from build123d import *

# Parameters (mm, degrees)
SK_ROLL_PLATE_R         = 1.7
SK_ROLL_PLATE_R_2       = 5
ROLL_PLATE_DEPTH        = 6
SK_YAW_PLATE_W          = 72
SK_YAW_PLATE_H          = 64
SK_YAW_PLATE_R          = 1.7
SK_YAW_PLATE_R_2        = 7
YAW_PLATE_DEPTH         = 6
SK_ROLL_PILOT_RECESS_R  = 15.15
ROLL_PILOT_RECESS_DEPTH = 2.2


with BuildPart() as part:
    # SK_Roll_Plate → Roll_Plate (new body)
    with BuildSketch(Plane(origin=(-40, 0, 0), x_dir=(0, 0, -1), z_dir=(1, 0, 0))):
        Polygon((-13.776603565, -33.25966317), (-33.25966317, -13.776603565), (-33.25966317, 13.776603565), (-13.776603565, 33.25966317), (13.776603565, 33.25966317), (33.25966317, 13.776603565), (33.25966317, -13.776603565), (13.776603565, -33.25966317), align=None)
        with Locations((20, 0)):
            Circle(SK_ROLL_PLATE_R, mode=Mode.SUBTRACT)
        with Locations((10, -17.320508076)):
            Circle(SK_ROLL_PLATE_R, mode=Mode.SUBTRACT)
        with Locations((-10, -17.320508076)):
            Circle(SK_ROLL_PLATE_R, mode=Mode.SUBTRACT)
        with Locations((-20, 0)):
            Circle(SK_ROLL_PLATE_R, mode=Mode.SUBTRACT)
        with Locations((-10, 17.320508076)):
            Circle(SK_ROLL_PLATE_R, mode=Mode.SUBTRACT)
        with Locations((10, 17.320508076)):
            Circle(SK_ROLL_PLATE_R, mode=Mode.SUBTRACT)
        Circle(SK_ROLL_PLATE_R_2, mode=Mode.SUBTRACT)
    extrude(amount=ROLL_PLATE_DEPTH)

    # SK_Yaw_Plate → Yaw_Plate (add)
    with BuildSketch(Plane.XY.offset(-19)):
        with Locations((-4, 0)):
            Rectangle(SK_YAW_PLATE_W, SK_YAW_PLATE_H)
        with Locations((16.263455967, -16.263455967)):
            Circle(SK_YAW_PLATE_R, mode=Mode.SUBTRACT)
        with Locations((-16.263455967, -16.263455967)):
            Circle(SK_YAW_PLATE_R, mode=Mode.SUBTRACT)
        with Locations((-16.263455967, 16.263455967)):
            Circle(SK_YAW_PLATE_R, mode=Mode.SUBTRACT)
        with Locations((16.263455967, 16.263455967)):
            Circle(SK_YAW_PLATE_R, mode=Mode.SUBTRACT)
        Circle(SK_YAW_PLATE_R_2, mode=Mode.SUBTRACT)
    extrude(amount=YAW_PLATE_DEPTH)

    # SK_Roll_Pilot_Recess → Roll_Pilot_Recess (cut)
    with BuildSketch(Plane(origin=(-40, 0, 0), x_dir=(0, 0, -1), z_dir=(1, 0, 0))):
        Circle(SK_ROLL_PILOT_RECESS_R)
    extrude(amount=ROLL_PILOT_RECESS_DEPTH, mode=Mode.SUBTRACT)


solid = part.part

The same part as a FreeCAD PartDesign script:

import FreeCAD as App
import Part
import Sketcher

V = App.Vector
Q = App.Units.Quantity

doc = App.newDocument("Part")
body = doc.addObject("PartDesign::Body", "Body")

sketch1 = body.newObject("Sketcher::SketchObject", "Sketch")
sketch1.AttachmentSupport = (doc.getObject("YZ_Plane"), [""])
sketch1.MapMode = "FlatFace"
sketch1.AttachmentOffset = App.Placement(V(0, 0, -40), App.Rotation())
sketch1.addGeometry(Part.LineSegment(V(-13.776604, 33.259663, 0), V(-33.259663, 13.776604, 0)), False)
sketch1.addGeometry(Part.LineSegment(V(-33.259663, 13.776604, 0), V(-33.259663, -13.776604, 0)), False)
sketch1.addGeometry(Part.LineSegment(V(-33.259663, -13.776604, 0), V(-13.776604, -33.259663, 0)), False)
sketch1.addGeometry(Part.LineSegment(V(-13.776604, -33.259663, 0), V(13.776604, -33.259663, 0)), False)
sketch1.addGeometry(Part.LineSegment(V(13.776604, -33.259663, 0), V(33.259663, -13.776604, 0)), False)
sketch1.addGeometry(Part.LineSegment(V(33.259663, -13.776604, 0), V(33.259663, 13.776604, 0)), False)
sketch1.addGeometry(Part.LineSegment(V(33.259663, 13.776604, 0), V(13.776604, 33.259663, 0)), False)
sketch1.addGeometry(Part.LineSegment(V(13.776604, 33.259663, 0), V(-13.776604, 33.259663, 0)), False)
sketch1.addGeometry(Part.Circle(V(-17.320508, -10, 0), V(0, 0, 1), 1.7), False)
sketch1.addGeometry(Part.Circle(V(-17.320508, 10, 0), V(0, 0, 1), 1.7), False)
sketch1.addGeometry(Part.Circle(V(0, -20, 0), V(0, 0, 1), 1.7), False)
sketch1.addGeometry(Part.Circle(V(0, 0, 0), V(0, 0, 1), 5), False)
sketch1.addGeometry(Part.Circle(V(17.320508, -10, 0), V(0, 0, 1), 1.7), False)
sketch1.addGeometry(Part.Circle(V(0, 20, 0), V(0, 0, 1), 1.7), False)
sketch1.addGeometry(Part.Circle(V(17.320508, 10, 0), V(0, 0, 1), 1.7), False)
sketch1.addConstraint(Sketcher.Constraint("Coincident", 0, 2, 1, 1))
sketch1.addConstraint(Sketcher.Constraint("Coincident", 1, 2, 2, 1))
sketch1.addConstraint(Sketcher.Constraint("Coincident", 2, 2, 3, 1))
sketch1.addConstraint(Sketcher.Constraint("Coincident", 3, 2, 4, 1))
sketch1.addConstraint(Sketcher.Constraint("Coincident", 4, 2, 5, 1))
sketch1.addConstraint(Sketcher.Constraint("Coincident", 5, 2, 6, 1))
sketch1.addConstraint(Sketcher.Constraint("Coincident", 6, 2, 7, 1))
sketch1.addConstraint(Sketcher.Constraint("Coincident", 7, 2, 0, 1))
sketch1.addConstraint(Sketcher.Constraint("Vertical", 1))
sketch1.addConstraint(Sketcher.Constraint("Horizontal", 3))
sketch1.addConstraint(Sketcher.Constraint("Vertical", 5))
sketch1.addConstraint(Sketcher.Constraint("Horizontal", 7))
sketch1.addConstraint(Sketcher.Constraint("Coincident", 11, 3, -1, 1))
sketch1.addConstraint(Sketcher.Constraint("Equal", 8, 9))
sketch1.addConstraint(Sketcher.Constraint("Equal", 9, 10))
sketch1.addConstraint(Sketcher.Constraint("Equal", 10, 12))
sketch1.addConstraint(Sketcher.Constraint("Equal", 12, 13))
sketch1.addConstraint(Sketcher.Constraint("Equal", 13, 14))
sketch1.addConstraint(Sketcher.Constraint("Symmetric", 9, 3, 12, 3, -1, 1))
sketch1.addConstraint(Sketcher.Constraint("Symmetric", 10, 3, 13, 3, -1, 1))
sketch1.addConstraint(Sketcher.Constraint("Symmetric", 8, 3, 14, 3, -1, 1))
sketch1.addConstraint(Sketcher.Constraint("Symmetric", 0, 2, 4, 2, -1, 1))
sketch1.addConstraint(Sketcher.Constraint("Symmetric", 2, 2, 6, 2, -1, 1))
sketch1.addConstraint(Sketcher.Constraint("Symmetric", 8, 3, 12, 3, -2))
sketch1.addConstraint(Sketcher.Constraint("PointOnObject", 10, 3, -2))
sketch1.addConstraint(Sketcher.Constraint("Perpendicular", 0, 2))
sketch1.addConstraint(Sketcher.Constraint("Perpendicular", 2, 4))
sketch1.addConstraint(Sketcher.Constraint("Perpendicular", 4, 6))
sketch1.addConstraint(Sketcher.Constraint("Horizontal", 1, 2, 4, 2))
sketch1.addConstraint(Sketcher.Constraint("Vertical", 3, 2, 6, 2))
sketch1.addConstraint(Sketcher.Constraint("Equal", 7, 1))
sketch1.addConstraint(Sketcher.Constraint("Diameter", 11, Q("10 mm")))
sketch1.addConstraint(Sketcher.Constraint("Diameter", 8, Q("3.4 mm")))
sketch1.addConstraint(Sketcher.Constraint("DistanceY", 8, 3, -1, 1, Q("10 mm")))
sketch1.addConstraint(Sketcher.Constraint("DistanceY", 10, 3, -1, 1, Q("20 mm")))
sketch1.addConstraint(Sketcher.Constraint("DistanceX", 3, 1, 3, 2, Q("27.553207 mm")))
sketch1.addConstraint(Sketcher.Constraint("DistanceX", 8, 3, -1, 1, Q("17.320508 mm")))
sketch1.addConstraint(Sketcher.Constraint("DistanceX", 1, 2, 2, 2, Q("19.48306 mm")))
pad1 = body.newObject("PartDesign::Pad", "Pad")
pad1.Profile = sketch1
pad1.Length = 6

sketch2 = body.newObject("Sketcher::SketchObject", "Sketch001")
sketch2.AttachmentSupport = (doc.getObject("XY_Plane"), [""])
sketch2.MapMode = "FlatFace"
sketch2.AttachmentOffset = App.Placement(V(0, 0, -19), App.Rotation())
sketch2.addGeometry(Part.LineSegment(V(-40, 32, 0), V(-40, -32, 0)), False)
sketch2.addGeometry(Part.LineSegment(V(-40, -32, 0), V(32, -32, 0)), False)
sketch2.addGeometry(Part.LineSegment(V(32, -32, 0), V(32, 32, 0)), False)
sketch2.addGeometry(Part.LineSegment(V(32, 32, 0), V(-40, 32, 0)), False)
sketch2.addGeometry(Part.Circle(V(-16.263456, -16.263456, 0), V(0, 0, 1), 1.7), False)
sketch2.addGeometry(Part.Circle(V(16.263456, -16.263456, 0), V(0, 0, 1), 1.7), False)
sketch2.addGeometry(Part.Circle(V(-16.263456, 16.263456, 0), V(0, 0, 1), 1.7), False)
sketch2.addGeometry(Part.Circle(V(0, 0, 0), V(0, 0, 1), 7), False)
sketch2.addGeometry(Part.Circle(V(16.263456, 16.263456, 0), V(0, 0, 1), 1.7), False)
sketch2.addConstraint(Sketcher.Constraint("Coincident", 0, 2, 1, 1))
sketch2.addConstraint(Sketcher.Constraint("Coincident", 1, 2, 2, 1))
sketch2.addConstraint(Sketcher.Constraint("Coincident", 2, 2, 3, 1))
sketch2.addConstraint(Sketcher.Constraint("Coincident", 3, 2, 0, 1))
sketch2.addConstraint(Sketcher.Constraint("Vertical", 0))
sketch2.addConstraint(Sketcher.Constraint("Horizontal", 1))
sketch2.addConstraint(Sketcher.Constraint("Vertical", 2))
sketch2.addConstraint(Sketcher.Constraint("Horizontal", 3))
sketch2.addConstraint(Sketcher.Constraint("Coincident", 7, 3, -1, 1))
sketch2.addConstraint(Sketcher.Constraint("Equal", 4, 5))
sketch2.addConstraint(Sketcher.Constraint("Equal", 5, 6))
sketch2.addConstraint(Sketcher.Constraint("Equal", 6, 8))
sketch2.addConstraint(Sketcher.Constraint("Symmetric", 5, 3, 6, 3, -1, 1))
sketch2.addConstraint(Sketcher.Constraint("Symmetric", 4, 3, 8, 3, -1, 1))
sketch2.addConstraint(Sketcher.Constraint("Symmetric", 4, 3, 5, 3, -2))
sketch2.addConstraint(Sketcher.Constraint("Diameter", 7, Q("14 mm")))
sketch2.addConstraint(Sketcher.Constraint("Diameter", 4, Q("3.4 mm")))
sketch2.addConstraint(Sketcher.Constraint("DistanceX", 1, 1, 1, 2, Q("72 mm")))
sketch2.addConstraint(Sketcher.Constraint("DistanceY", 0, 2, 0, 1, Q("64 mm")))
sketch2.addConstraint(Sketcher.Constraint("DistanceX", 0, 2, -1, 1, Q("40 mm")))
sketch2.addConstraint(Sketcher.Constraint("DistanceY", 0, 2, -1, 1, Q("32 mm")))
sketch2.addConstraint(Sketcher.Constraint("DistanceX", 4, 3, 5, 3, Q("32.526912 mm")))
sketch2.addConstraint(Sketcher.Constraint("DistanceY", 4, 3, 6, 3, Q("32.526912 mm")))
pad2 = body.newObject("PartDesign::Pad", "Pad001")
pad2.Profile = sketch2
pad2.Length = 6

sketch3 = body.newObject("Sketcher::SketchObject", "Sketch002")
sketch3.AttachmentSupport = (doc.getObject("YZ_Plane"), [""])
sketch3.MapMode = "FlatFace"
sketch3.AttachmentOffset = App.Placement(V(0, 0, -40), App.Rotation())
sketch3.addGeometry(Part.Circle(V(0, 0, 0), V(0, 0, 1), 15.15), False)
sketch3.addConstraint(Sketcher.Constraint("Coincident", 0, 3, -1, 1))
sketch3.addConstraint(Sketcher.Constraint("Diameter", 0, Q("30.3 mm")))
pocket1 = body.newObject("PartDesign::Pocket", "Pocket")
pocket1.Profile = sketch3
pocket1.Length = 2.2
pocket1.Reversed = True

doc.recompute()
